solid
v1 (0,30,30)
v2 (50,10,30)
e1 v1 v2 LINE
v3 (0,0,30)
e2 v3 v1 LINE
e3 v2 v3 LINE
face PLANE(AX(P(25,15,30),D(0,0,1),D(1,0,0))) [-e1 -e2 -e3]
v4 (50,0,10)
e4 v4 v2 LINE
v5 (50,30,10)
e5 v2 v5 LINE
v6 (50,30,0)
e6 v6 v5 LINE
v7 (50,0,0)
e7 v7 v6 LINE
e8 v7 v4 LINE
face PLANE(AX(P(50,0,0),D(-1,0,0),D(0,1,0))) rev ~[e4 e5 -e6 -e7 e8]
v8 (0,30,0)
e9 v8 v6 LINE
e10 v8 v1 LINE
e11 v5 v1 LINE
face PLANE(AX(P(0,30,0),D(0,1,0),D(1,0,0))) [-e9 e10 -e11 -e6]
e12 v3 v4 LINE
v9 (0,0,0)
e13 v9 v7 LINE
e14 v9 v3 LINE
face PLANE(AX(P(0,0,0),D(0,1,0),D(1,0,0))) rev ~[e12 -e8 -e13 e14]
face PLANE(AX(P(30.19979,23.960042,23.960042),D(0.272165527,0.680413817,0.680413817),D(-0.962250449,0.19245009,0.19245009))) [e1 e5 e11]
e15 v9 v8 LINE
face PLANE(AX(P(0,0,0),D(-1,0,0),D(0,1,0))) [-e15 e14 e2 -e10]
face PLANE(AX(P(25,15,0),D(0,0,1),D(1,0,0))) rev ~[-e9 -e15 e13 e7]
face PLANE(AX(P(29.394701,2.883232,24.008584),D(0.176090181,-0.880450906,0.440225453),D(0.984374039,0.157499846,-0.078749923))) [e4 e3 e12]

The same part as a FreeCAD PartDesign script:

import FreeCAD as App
import Part
import Sketcher
Q = App.Units.Quantity

doc = App.newDocument("Part")
body = doc.addObject("PartDesign::Body", "Body")

# Sketch on XY plane
sketch1 = body.newObject("Sketcher::SketchObject", "Sketch")
sketch1.AttachmentSupport = (doc.getObject("XY_Plane"), [""])
sketch1.MapMode = "FlatFace"
sketch1.addGeometry([
    Part.LineSegment(App.Vector(0, 30, 0), App.Vector(0, 0, 0)),
    Part.LineSegment(App.Vector(0, 0, 0), App.Vector(50, 0, 0)),
    Part.LineSegment(App.Vector(50, 0, 0), App.Vector(50, 30, 0)),
    Part.LineSegment(App.Vector(50, 30, 0), App.Vector(0, 30, 0)),
], False)
sketch1.addConstraint([
    Sketcher.Constraint("Coincident", 0, 2, 1, 1),
    Sketcher.Constraint("Coincident", 1, 2, 2, 1),
    Sketcher.Constraint("Coincident", 2, 2, 3, 1),
    Sketcher.Constraint("Coincident", 3, 2, 0, 1),
    Sketcher.Constraint("Vertical", 0),
    Sketcher.Constraint("Horizontal", 1),
    Sketcher.Constraint("Vertical", 2),
    Sketcher.Constraint("Horizontal", 3),
    Sketcher.Constraint("Coincident", 0, 2, -1, 1),
    Sketcher.Constraint("DistanceX", 1, 1, 1, 2, Q("50 mm")),
    Sketcher.Constraint("DistanceY", 0, 2, 0, 1, Q("30 mm")),
])
pad1 = body.newObject("PartDesign::Pad", "Pad")
pad1.Profile = sketch1
pad1.Length = 30

# Sketch on an angled plane
sketch2 = body.newObject("Sketcher::SketchObject", "Sketch001")
sketch2.Placement = App.Placement(App.Vector(2.325581, -11.627907, 5.813953), App.Rotation(App.Vector(0.984374039, 0.157499846, -0.078749923), App.Vector(0, 0.447213595, 0.894427191), App.Vector(0.176090181, -0.880450906, 0.440225453), "ZXY"))
sketch2.addGeometry([
    Part.LineSegment(App.Vector(48.431203, 8.944272, 0), App.Vector(48.431203, 31.304952, 0)),
    Part.LineSegment(App.Vector(48.431203, 31.304952, 0), App.Vector(-2.362498, 26.832816, 0)),
    Part.LineSegment(App.Vector(-2.362498, 26.832816, 0), App.Vector(48.431203, 8.944272, 0)),
], False)
sketch2.addConstraint([
    Sketcher.Constraint("Coincident", 0, 2, 1, 1),
    Sketcher.Constraint("Coincident", 1, 2, 2, 1),
    Sketcher.Constraint("Coincident", 2, 2, 0, 1),
    Sketcher.Constraint("Vertical", 0),
    Sketcher.Constraint("DistanceY", 0, 1, 0, 2, Q("22.36068 mm")),
    Sketcher.Constraint("DistanceX", 1, 2, 0, 2, Q("50.7937 mm")),
    Sketcher.Constraint("Distance", 2, Q("53.851648 mm")),
    Sketcher.Constraint("DistanceY", -1, 1, 0, 2, Q("31.304952 mm")),
    Sketcher.Constraint("DistanceX", -1, 1, 0, 2, Q("48.431203 mm")),
])
pocket1 = body.newObject("PartDesign::Pocket", "Pocket")
pocket1.Profile = sketch2
pocket1.Type = "ThroughAll"
pocket1.Reversed = True

# Sketch on an angled plane
sketch3 = body.newObject("Sketcher::SketchObject", "Sketch002")
sketch3.Placement = App.Placement(App.Vector(11.111111, 27.777778, 27.777778), App.Rotation(App.Vector(-0.962250449, 0.19245009, 0.19245009), App.Vector(0, -0.707106781, 0.707106781), App.Vector(0.272165527, 0.680413817, 0.680413817), "ZXY"))
sketch3.addGeometry([
    Part.LineSegment(App.Vector(-40.414519, -14.142136, 0), App.Vector(11.547005, 0, 0)),
    Part.LineSegment(App.Vector(11.547005, 0, 0), App.Vector(-40.414519, 14.142136, 0)),
    Part.LineSegment(App.Vector(-40.414519, 14.142136, 0), App.Vector(-40.414519, -14.142136, 0)),
], False)
sketch3.addConstraint([
    Sketcher.Constraint("Coincident", 0, 2, 1, 1),
    Sketcher.Constraint("Coincident", 1, 2, 2, 1),
    Sketcher.Constraint("Coincident", 2, 2, 0, 1),
    Sketcher.Constraint("Vertical", 2),
    Sketcher.Constraint("PointOnObject", 0, 2, -1),
    Sketcher.Constraint("Equal", 0, 1),
    Sketcher.Constraint("DistanceY", 2, 2, 2, 1, Q("28.284271 mm")),
    Sketcher.Constraint("Distance", 0, Q("53.851648 mm")),
    Sketcher.Constraint("DistanceX", 1, 2, -1, 1, Q("40.414519 mm")),
])
pocket2 = body.newObject("PartDesign::Pocket", "Pocket001")
pocket2.Profile = sketch3
pocket2.Type = "ThroughAll"
pocket2.Reversed = True

doc.recompute()
